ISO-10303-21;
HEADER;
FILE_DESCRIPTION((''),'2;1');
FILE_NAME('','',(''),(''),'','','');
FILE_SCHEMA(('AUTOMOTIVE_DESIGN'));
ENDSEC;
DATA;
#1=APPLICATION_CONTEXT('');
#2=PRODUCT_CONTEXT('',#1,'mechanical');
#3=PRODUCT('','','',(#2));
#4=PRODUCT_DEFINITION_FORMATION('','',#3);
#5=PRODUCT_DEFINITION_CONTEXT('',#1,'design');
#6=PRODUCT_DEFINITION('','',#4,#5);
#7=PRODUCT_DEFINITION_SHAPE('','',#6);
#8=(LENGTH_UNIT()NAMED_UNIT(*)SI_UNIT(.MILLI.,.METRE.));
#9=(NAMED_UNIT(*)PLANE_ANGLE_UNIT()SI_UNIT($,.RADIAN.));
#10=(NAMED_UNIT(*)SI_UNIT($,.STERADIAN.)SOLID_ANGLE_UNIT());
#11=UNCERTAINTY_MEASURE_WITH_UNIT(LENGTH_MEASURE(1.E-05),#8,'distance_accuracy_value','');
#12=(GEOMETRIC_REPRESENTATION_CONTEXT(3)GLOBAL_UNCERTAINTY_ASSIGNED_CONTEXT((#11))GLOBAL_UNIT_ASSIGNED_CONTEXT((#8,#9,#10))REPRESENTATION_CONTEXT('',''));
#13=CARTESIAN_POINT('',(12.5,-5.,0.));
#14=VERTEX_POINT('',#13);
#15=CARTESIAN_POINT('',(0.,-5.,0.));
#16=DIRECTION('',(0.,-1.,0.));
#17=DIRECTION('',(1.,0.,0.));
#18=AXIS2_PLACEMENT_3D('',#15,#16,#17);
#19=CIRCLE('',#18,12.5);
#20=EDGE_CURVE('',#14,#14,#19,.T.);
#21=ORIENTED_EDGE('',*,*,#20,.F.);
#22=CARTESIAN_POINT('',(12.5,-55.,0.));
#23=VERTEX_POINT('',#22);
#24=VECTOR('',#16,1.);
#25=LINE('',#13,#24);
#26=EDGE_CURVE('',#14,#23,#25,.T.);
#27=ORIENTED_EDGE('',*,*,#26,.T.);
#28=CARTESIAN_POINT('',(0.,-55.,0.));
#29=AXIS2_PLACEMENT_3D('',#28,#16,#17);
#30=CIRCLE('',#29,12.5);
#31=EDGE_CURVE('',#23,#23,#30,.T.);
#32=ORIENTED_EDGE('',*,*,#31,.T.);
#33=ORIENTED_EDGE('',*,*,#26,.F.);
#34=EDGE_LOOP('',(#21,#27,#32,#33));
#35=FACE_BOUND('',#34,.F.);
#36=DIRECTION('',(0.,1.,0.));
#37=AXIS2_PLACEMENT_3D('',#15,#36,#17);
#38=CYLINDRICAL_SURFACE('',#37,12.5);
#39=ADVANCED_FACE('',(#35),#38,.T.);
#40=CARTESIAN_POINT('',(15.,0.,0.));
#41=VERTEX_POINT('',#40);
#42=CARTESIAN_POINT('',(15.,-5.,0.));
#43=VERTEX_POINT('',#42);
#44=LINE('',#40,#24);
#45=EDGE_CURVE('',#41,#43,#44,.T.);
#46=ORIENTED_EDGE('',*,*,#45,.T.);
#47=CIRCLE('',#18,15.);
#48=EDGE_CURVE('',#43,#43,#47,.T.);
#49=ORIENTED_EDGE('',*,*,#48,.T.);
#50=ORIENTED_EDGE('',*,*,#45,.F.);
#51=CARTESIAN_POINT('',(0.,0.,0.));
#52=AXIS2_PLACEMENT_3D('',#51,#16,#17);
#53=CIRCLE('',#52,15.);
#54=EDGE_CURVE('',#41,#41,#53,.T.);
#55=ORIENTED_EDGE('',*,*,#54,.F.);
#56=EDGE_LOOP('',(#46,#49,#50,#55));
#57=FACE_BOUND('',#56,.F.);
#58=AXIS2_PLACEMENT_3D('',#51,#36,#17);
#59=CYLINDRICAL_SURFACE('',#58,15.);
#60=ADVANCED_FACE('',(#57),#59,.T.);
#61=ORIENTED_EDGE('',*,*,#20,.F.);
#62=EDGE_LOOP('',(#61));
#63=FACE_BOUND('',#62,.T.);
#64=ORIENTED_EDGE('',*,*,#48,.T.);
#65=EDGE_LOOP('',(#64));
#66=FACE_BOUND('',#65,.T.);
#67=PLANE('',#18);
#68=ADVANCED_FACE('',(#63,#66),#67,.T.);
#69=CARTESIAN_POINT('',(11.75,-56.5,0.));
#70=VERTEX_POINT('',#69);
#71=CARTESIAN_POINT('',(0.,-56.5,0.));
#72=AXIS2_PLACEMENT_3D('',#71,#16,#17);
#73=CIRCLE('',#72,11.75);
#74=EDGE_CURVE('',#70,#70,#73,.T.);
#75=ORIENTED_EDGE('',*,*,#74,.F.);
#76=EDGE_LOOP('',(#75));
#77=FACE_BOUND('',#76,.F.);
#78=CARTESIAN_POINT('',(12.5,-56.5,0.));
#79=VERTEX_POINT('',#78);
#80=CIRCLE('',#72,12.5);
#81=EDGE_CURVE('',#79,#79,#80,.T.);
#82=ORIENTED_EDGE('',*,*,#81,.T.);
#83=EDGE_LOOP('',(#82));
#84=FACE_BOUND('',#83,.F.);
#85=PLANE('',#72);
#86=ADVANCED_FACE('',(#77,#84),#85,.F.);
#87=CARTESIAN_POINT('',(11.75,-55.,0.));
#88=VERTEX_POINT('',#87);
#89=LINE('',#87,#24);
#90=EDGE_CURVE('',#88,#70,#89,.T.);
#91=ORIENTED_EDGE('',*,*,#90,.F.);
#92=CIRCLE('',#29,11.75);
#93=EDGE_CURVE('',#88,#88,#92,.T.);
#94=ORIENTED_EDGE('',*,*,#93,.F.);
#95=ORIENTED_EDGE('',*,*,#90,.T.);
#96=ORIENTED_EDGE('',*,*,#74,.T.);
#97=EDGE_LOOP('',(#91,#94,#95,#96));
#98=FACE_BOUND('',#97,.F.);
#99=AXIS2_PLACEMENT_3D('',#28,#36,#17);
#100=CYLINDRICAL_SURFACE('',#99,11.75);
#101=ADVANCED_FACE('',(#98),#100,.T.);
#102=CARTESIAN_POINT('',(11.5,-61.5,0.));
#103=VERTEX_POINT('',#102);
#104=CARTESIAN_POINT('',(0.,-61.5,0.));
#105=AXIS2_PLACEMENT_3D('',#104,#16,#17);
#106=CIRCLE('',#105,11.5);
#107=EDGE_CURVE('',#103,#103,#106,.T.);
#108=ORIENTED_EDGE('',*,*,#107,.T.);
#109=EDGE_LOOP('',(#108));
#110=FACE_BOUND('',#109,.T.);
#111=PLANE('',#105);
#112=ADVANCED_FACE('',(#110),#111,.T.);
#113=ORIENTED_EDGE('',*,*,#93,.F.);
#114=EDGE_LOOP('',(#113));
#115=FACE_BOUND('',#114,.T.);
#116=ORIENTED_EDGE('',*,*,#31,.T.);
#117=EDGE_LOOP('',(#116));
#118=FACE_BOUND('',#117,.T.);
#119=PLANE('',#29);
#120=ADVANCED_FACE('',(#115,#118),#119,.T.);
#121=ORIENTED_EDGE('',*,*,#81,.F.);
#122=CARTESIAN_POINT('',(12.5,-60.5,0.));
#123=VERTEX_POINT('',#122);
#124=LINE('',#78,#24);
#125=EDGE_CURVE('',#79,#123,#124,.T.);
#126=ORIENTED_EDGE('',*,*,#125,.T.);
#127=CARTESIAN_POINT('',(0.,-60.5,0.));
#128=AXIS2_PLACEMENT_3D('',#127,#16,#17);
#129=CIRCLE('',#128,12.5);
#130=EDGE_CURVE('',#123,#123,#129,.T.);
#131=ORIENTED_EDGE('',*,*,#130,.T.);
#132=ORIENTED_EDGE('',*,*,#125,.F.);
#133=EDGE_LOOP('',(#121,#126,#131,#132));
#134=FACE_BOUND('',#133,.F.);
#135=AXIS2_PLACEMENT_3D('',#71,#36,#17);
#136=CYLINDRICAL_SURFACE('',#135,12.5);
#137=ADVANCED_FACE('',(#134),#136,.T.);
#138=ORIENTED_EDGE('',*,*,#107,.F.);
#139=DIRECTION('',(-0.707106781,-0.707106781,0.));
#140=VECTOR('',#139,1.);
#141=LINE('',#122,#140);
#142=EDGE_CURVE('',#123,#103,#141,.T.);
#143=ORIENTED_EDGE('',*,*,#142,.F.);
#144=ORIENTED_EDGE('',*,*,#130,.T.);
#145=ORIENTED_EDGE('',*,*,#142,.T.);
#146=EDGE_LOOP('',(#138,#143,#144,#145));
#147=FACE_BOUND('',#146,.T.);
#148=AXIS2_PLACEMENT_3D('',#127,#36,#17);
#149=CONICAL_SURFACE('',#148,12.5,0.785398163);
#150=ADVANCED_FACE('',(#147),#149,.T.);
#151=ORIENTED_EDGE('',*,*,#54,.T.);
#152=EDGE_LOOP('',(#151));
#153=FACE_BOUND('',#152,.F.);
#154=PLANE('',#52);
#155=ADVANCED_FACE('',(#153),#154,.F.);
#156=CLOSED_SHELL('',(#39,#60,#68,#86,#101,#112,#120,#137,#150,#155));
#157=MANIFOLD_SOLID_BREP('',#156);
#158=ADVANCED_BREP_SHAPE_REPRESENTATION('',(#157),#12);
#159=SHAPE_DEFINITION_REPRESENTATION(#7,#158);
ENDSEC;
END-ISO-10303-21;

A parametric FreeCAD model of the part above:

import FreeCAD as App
import Part
import Sketcher

V = App.Vector
Q = App.Units.Quantity


def edges_at(feature, points):
    """Names of the edges that pass closest to the given points."""
    edges = feature.Shape.Edges
    near = lambda p: min(range(len(edges)), key=lambda i: edges[i].distToShape(Part.Vertex(*p))[0])
    return sorted({f"Edge{near(p) + 1}" for p in points})

doc = App.newDocument("Part")
body = doc.addObject("PartDesign::Body", "Body")

# Sketch on XZ plane
sketch1 = body.newObject("Sketcher::SketchObject", "Sketch")
sketch1.AttachmentSupport = (doc.getObject("XZ_Plane"), [""])
sketch1.MapMode = "FlatFace"
sketch1.addGeometry(Part.Circle(V(0, 0, 0), V(0, 0, 1), 15), False)
sketch1.addConstraint([
    Sketcher.Constraint("Coincident", 0, 3, -1, 1),
    Sketcher.Constraint("Diameter", 0, Q("30 mm")),
])
pad1 = body.newObject("PartDesign::Pad", "Pad")
pad1.Profile = sketch1
pad1.Length = 5

# Sketch on XZ plane
sketch2 = body.newObject("Sketcher::SketchObject", "Sketch001")
sketch2.AttachmentSupport = (doc.getObject("XZ_Plane"), [""])
sketch2.MapMode = "FlatFace"
sketch2.AttachmentOffset = App.Placement(V(0, 0, 5), App.Rotation())
sketch2.addGeometry(Part.Circle(V(0, 0, 0), V(0, 0, 1), 12), False)
sketch2.addConstraint([
    Sketcher.Constraint("Coincident", 0, 3, -1, 1),
    Sketcher.Constraint("Diameter", 0, Q("25 mm")),
])
pad2 = body.newObject("PartDesign::Pad", "Pad001")
pad2.Profile = sketch2
pad2.Length = 50

# Sketch on XZ plane
sketch3 = body.newObject("Sketcher::SketchObject", "Sketch002")
sketch3.AttachmentSupport = (doc.getObject("XZ_Plane"), [""])
sketch3.MapMode = "FlatFace"
sketch3.AttachmentOffset = App.Placement(V(0, 0, 55), App.Rotation())
sketch3.addGeometry(Part.Circle(V(0, 0, 0), V(0, 0, 1), 12), False)
sketch3.addConstraint([
    Sketcher.Constraint("Coincident", 0, 3, -1, 1),
    Sketcher.Constraint("Diameter", 0, Q("23.5 mm")),
])
pad3 = body.newObject("PartDesign::Pad", "Pad002")
pad3.Profile = sketch3
pad3.Length = 1.5

# Sketch on XZ plane
sketch4 = body.newObject("Sketcher::SketchObject", "Sketch003")
sketch4.AttachmentSupport = (doc.getObject("XZ_Plane"), [""])
sketch4.MapMode = "FlatFace"
sketch4.AttachmentOffset = App.Placement(V(0, 0, 56.5), App.Rotation())
sketch4.addGeometry(Part.Circle(V(0, 0, 0), V(0, 0, 1), 12), False)
sketch4.addConstraint([
    Sketcher.Constraint("Coincident", 0, 3, -1, 1),
    Sketcher.Constraint("Diameter", 0, Q("25 mm")),
])
pad4 = body.newObject("PartDesign::Pad", "Pad003")
pad4.Profile = sketch4
pad4.Length = 5
doc.recompute()

chamfer = body.newObject("PartDesign::Chamfer", "Chamfer")
chamfer.Base = (pad4, edges_at(pad4, [(-12.5, -61.5, 0)]))
chamfer.Size = 1

doc.recompute()
